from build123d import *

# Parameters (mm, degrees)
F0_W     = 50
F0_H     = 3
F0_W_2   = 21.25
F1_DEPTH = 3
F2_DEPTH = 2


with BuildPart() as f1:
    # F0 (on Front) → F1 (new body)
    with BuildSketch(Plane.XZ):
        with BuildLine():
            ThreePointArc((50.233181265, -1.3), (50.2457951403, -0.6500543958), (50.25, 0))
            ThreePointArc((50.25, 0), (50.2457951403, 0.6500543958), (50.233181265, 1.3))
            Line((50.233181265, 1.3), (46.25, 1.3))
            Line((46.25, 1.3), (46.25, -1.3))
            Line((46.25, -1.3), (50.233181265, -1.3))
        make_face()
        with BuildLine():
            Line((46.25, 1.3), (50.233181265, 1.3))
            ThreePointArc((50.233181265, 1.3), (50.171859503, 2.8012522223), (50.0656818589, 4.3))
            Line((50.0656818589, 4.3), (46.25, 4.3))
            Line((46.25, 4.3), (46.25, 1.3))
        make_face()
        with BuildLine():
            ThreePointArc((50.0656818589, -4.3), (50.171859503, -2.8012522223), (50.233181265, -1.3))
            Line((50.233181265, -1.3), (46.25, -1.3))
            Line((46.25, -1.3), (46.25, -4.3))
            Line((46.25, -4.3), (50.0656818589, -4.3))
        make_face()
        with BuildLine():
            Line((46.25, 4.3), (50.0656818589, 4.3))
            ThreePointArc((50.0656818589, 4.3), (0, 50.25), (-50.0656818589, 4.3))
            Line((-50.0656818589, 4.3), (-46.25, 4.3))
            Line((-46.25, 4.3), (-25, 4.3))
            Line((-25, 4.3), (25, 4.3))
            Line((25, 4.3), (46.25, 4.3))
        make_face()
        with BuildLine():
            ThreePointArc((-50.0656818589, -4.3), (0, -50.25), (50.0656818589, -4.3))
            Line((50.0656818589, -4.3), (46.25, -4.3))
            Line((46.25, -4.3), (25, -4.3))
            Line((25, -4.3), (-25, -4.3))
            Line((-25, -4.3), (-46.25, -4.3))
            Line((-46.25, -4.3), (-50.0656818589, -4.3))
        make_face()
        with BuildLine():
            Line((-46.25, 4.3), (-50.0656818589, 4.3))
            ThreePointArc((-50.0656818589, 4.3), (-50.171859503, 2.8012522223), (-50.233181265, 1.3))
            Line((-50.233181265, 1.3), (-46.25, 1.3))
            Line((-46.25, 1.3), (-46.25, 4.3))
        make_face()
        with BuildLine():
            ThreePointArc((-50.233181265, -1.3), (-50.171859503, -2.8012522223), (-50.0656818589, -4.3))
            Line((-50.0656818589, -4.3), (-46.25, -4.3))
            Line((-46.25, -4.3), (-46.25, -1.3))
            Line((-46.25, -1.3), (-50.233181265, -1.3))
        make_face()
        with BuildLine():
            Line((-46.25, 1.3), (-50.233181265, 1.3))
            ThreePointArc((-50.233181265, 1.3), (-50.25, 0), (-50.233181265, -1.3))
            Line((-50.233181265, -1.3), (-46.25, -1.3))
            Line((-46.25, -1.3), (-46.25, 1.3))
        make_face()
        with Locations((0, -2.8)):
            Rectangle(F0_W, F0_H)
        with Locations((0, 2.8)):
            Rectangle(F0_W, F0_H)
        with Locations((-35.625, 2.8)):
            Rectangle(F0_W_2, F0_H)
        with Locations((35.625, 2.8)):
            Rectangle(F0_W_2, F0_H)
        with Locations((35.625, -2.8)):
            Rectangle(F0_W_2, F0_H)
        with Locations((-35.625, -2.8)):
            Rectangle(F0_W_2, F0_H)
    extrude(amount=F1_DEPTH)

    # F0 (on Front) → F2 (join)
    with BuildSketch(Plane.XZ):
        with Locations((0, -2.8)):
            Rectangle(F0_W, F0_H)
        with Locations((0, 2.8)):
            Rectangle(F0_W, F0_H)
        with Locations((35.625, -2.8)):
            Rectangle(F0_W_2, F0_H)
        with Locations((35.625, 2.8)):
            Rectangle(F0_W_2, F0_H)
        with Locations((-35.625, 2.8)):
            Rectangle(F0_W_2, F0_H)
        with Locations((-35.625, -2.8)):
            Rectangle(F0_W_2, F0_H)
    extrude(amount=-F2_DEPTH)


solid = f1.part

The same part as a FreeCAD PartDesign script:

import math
import FreeCAD as App
import Part
import Sketcher
Q = App.Units.Quantity

doc = App.newDocument("Part")
params = doc.addObject("Spreadsheet::Sheet", "Params")
for row, (alias, value) in enumerate([
    ("sketch1_radius", "50.25 mm"),
    ("sketch1_width", "92.5 mm"),
    ("sketch1_height", "2.6 mm"),
    ("pad1_length", "3 mm"),
    ("sketch2_height", "3 mm"),
    ("sketch2_width", "92.5 mm"),
    ("pad2_length", "2 mm"),
], start=1):
    params.set(f"A{row}", alias)
    params.set(f"B{row}", "=" + value)
    params.setAlias(f"B{row}", alias)

body = doc.addObject("PartDesign::Body", "Body")

# Sketch on XZ plane
sketch1 = body.newObject("Sketcher::SketchObject", "Sketch")
sketch1.AttachmentSupport = (doc.getObject("XZ_Plane"), [""])
sketch1.MapMode = "FlatFace"
sketch1.addGeometry([
    Part.ArcOfCircle(Part.Circle(App.Vector(0, 0, 0), App.Vector(0, 0, 1), 50.25), math.radians(-1.482444), math.radians(0)),  # 0
    Part.ArcOfCircle(Part.Circle(App.Vector(0, 0, 0), App.Vector(0, 0, 1), 50.25), math.radians(0), math.radians(1.482444)),  # 1
    Part.ArcOfCircle(Part.Circle(App.Vector(0, 0, 0), App.Vector(0, 0, 1), 50.25), math.radians(1.482444), math.radians(4.908926)),  # 2
    Part.ArcOfCircle(Part.Circle(App.Vector(0, 0, 0), App.Vector(0, 0, 1), 50.25), math.radians(4.908926), math.radians(175.091074)),  # 3
    Part.ArcOfCircle(Part.Circle(App.Vector(0, 0, 0), App.Vector(0, 0, 1), 50.25), math.radians(175.091074), math.radians(178.517556)),  # 4
    Part.ArcOfCircle(Part.Circle(App.Vector(0, 0, 0), App.Vector(0, 0, 1), 50.25), math.radians(178.517556), math.radians(181.482444)),  # 5
    Part.ArcOfCircle(Part.Circle(App.Vector(0, 0, 0), App.Vector(0, 0, 1), 50.25), math.radians(-178.517556), math.radians(-175.091074)),  # 6
    Part.ArcOfCircle(Part.Circle(App.Vector(0, 0, 0), App.Vector(0, 0, 1), 50.25), math.radians(-175.091074), math.radians(-4.908926)),  # 7
    Part.ArcOfCircle(Part.Circle(App.Vector(0, 0, 0), App.Vector(0, 0, 1), 50.25), math.radians(-4.908926), math.radians(-1.482444)),  # 8
    Part.LineSegment(App.Vector(46.25, 1.3, 0), App.Vector(46.25, -1.3, 0)),  # 9
    Part.LineSegment(App.Vector(46.25, -1.3, 0), App.Vector(-46.25, -1.3, 0)),  # 10
    Part.LineSegment(App.Vector(-46.25, -1.3, 0), App.Vector(-46.25, 1.3, 0)),  # 11
    Part.LineSegment(App.Vector(-46.25, 1.3, 0), App.Vector(46.25, 1.3, 0)),  # 12
], False)
sketch1.addConstraint([
    Sketcher.Constraint("Tangent", 0, 2, 1, 1),
    Sketcher.Constraint("Tangent", 1, 2, 2, 1),
    Sketcher.Constraint("Tangent", 2, 2, 3, 1),
    Sketcher.Constraint("Tangent", 3, 2, 4, 1),
    Sketcher.Constraint("Tangent", 4, 2, 5, 1),
    Sketcher.Constraint("Tangent", 5, 2, 6, 1),
    Sketcher.Constraint("Tangent", 6, 2, 7, 1),
    Sketcher.Constraint("Tangent", 7, 2, 8, 1),
    Sketcher.Constraint("Coincident", 8, 2, 0, 1),
    Sketcher.Constraint("Coincident", 9, 2, 10, 1),
    Sketcher.Constraint("Coincident", 10, 2, 11, 1),
    Sketcher.Constraint("Coincident", 11, 2, 12, 1),
    Sketcher.Constraint("Coincident", 12, 2, 9, 1),
    Sketcher.Constraint("Vertical", 9),
    Sketcher.Constraint("Horizontal", 10),
    Sketcher.Constraint("Vertical", 11),
    Sketcher.Constraint("Horizontal", 12),
    Sketcher.Constraint("Coincident", 0, 3, -1, 1),
    Sketcher.Constraint("Coincident", 2, 3, -1, 1),
    Sketcher.Constraint("Coincident", 4, 3, -1, 1),
    Sketcher.Constraint("Coincident", 6, 3, -1, 1),
    Sketcher.Constraint("Equal", 7, 8),
    Sketcher.Constraint("Symmetric", 9, 2, 11, 2, -1, 1),
    Sketcher.Constraint("PointOnObject", 0, 2, -1),
    Sketcher.Constraint("Horizontal", 2, 2, 3, 2),
    Sketcher.Constraint("Horizontal", 1, 2, 4, 2),
    Sketcher.Constraint("Horizontal", 6, 2, 7, 2),
    Sketcher.Constraint("Horizontal", 5, 2, 8, 2),
    Sketcher.Constraint("Horizontal", 8, 2, 9, 2),
    Sketcher.Constraint("Horizontal", 4, 2, 11, 2),
    Sketcher.Constraint("Vertical", 3, 2, 6, 2),
    Sketcher.Constraint("Radius", 0, Q("50.25 mm")),
    Sketcher.Constraint("DistanceX", 10, 2, 10, 1, Q("92.5 mm")),
    Sketcher.Constraint("DistanceY", 9, 2, 9, 1, Q("2.6 mm")),
    Sketcher.Constraint("DistanceY", 1, 2, 2, 2, Q("3 mm")),
])
sketch1.setExpression("Constraints[31]", "Params.sketch1_radius")
sketch1.setExpression("Constraints[32]", "Params.sketch1_width")
sketch1.setExpression("Constraints[33]", "Params.sketch1_height")
pad1 = body.newObject("PartDesign::Pad", "Pad")
pad1.Profile = sketch1
pad1.setExpression("Length", "Params.pad1_length")

# Sketch on XZ plane
sketch2 = body.newObject("Sketcher::SketchObject", "Sketch001")
sketch2.AttachmentSupport = (doc.getObject("XZ_Plane"), [""])
sketch2.MapMode = "FlatFace"
sketch2.addGeometry([
    Part.LineSegment(App.Vector(46.25, -4.3, 0), App.Vector(46.25, -1.3, 0)),  # 0
    Part.LineSegment(App.Vector(46.25, -1.3, 0), App.Vector(-46.25, -1.3, 0)),  # 1
    Part.LineSegment(App.Vector(-46.25, -1.3, 0), App.Vector(-46.25, -4.3, 0)),  # 2
    Part.LineSegment(App.Vector(-46.25, -4.3, 0), App.Vector(46.25, -4.3, 0)),  # 3
    Part.LineSegment(App.Vector(46.25, 1.3, 0), App.Vector(46.25, 4.3, 0)),  # 4
    Part.LineSegment(App.Vector(46.25, 4.3, 0), App.Vector(-46.25, 4.3, 0)),  # 5
    Part.LineSegment(App.Vector(-46.25, 4.3, 0), App.Vector(-46.25, 1.3, 0)),  # 6
    Part.LineSegment(App.Vector(-46.25, 1.3, 0), App.Vector(46.25, 1.3, 0)),  # 7
], False)
sketch2.addConstraint([
    Sketcher.Constraint("Coincident", 0, 2, 1, 1),
    Sketcher.Constraint("Coincident", 1, 2, 2, 1),
    Sketcher.Constraint("Coincident", 2, 2, 3, 1),
    Sketcher.Constraint("Coincident", 3, 2, 0, 1),
    Sketcher.Constraint("Coincident", 4, 2, 5, 1),
    Sketcher.Constraint("Coincident", 5, 2, 6, 1),
    Sketcher.Constraint("Coincident", 6, 2, 7, 1),
    Sketcher.Constraint("Coincident", 7, 2, 4, 1),
    Sketcher.Constraint("Vertical", 0),
    Sketcher.Constraint("Horizontal", 1),
    Sketcher.Constraint("Vertical", 2),
    Sketcher.Constraint("Horizontal", 3),
    Sketcher.Constraint("Vertical", 4),
    Sketcher.Constraint("Horizontal", 5),
    Sketcher.Constraint("Vertical", 6),
    Sketcher.Constraint("Horizontal", 7),
    Sketcher.Constraint("Symmetric", 2, 2, 4, 2, -1, 1),
    Sketcher.Constraint("Symmetric", 0, 2, 6, 2, -1, 1),
    Sketcher.Constraint("Vertical", 3, 2, 4, 2),
    Sketcher.Constraint("DistanceY", 0, 1, 0, 2, Q("3 mm")),
    Sketcher.Constraint("DistanceX", 1, 2, 1, 1, Q("92.5 mm")),
    Sketcher.Constraint("DistanceY", 0, 2, -1, 1, Q("1.3 mm")),
])
sketch2.setExpression("Constraints[19]", "Params.sketch2_height")
sketch2.setExpression("Constraints[20]", "Params.sketch2_width")
pad2 = body.newObject("PartDesign::Pad", "Pad001")
pad2.Profile = sketch2
pad2.setExpression("Length", "Params.pad2_length")
pad2.Reversed = True

doc.recompute()
